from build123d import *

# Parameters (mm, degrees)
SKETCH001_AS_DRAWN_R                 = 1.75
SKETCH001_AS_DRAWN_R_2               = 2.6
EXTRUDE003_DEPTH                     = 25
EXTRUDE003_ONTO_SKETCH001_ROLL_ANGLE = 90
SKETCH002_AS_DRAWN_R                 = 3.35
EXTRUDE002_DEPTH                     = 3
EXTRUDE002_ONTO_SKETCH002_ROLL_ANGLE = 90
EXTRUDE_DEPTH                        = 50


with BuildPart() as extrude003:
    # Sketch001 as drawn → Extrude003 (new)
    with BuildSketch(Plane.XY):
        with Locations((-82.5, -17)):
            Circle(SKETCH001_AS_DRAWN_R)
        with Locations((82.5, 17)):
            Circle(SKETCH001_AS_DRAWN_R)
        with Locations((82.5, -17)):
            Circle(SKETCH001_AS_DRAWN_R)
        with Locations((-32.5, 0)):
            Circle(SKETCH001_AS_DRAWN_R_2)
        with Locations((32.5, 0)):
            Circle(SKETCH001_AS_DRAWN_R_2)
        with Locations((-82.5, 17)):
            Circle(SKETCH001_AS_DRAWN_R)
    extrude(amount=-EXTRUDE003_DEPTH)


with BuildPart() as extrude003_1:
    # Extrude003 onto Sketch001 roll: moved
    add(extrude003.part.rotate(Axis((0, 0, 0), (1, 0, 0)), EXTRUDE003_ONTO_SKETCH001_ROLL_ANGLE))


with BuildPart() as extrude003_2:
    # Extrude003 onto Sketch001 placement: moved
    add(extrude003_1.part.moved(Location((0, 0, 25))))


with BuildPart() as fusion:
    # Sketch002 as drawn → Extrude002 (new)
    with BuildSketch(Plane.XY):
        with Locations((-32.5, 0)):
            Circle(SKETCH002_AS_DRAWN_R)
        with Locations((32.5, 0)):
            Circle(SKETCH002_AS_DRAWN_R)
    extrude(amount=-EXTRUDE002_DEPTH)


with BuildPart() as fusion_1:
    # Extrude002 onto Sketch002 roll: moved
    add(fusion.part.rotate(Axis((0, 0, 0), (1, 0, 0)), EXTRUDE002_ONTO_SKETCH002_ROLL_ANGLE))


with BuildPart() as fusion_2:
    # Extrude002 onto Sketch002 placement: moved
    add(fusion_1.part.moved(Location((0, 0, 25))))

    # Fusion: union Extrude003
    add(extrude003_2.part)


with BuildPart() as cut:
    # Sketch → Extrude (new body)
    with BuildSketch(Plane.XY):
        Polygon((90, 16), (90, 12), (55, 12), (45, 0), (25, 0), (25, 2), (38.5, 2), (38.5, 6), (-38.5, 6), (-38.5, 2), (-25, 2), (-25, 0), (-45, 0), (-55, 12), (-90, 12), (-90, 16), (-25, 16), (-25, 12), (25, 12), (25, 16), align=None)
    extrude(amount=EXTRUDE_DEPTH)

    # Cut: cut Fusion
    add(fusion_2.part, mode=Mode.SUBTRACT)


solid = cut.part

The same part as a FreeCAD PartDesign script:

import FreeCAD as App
import Part
import Sketcher
from FreeCAD import Vector
Q = App.Units.Quantity

doc = App.newDocument("Part")
body = doc.addObject("PartDesign::Body", "Body")
body.AllowCompound = True

# Sketch on XY plane
sketch1 = body.newObject("Sketcher::SketchObject", "Sketch")
sketch1.AttachmentSupport = (doc.getObject("XY_Plane"), [""])
sketch1.MapMode = "FlatFace"
sketch1.addGeometry([
    Part.Circle(Vector(-82.5, -17, 0), Vector(0, 0, 1), 1.8),  # 0
    Part.Circle(Vector(82.5, 17, 0), Vector(0, 0, 1), 1.8),  # 1
    Part.Circle(Vector(82.5, -17, 0), Vector(0, 0, 1), 1.8),  # 2
    Part.Circle(Vector(-32.5, 0, 0), Vector(0, 0, 1), 2.6),  # 3
    Part.Circle(Vector(32.5, 0, 0), Vector(0, 0, 1), 2.6),  # 4
    Part.Circle(Vector(-82.5, 17, 0), Vector(0, 0, 1), 1.8),  # 5
], False)
sketch1.addConstraint([
    Sketcher.Constraint("Equal", 0, 1),
    Sketcher.Constraint("Equal", 1, 2),
    Sketcher.Constraint("Equal", 3, 4),
    Sketcher.Constraint("Equal", 2, 5),
    Sketcher.Constraint("Symmetric", 0, 3, 1, 3, -1, 1),
    Sketcher.Constraint("Symmetric", 3, 3, 4, 3, -1, 1),
    Sketcher.Constraint("Symmetric", 2, 3, 5, 3, -1, 1),
    Sketcher.Constraint("Symmetric", 0, 3, 2, 3, -2),
    Sketcher.Constraint("PointOnObject", 3, 3, -1),
    Sketcher.Constraint("Diameter", 0, Q("3.5 mm")),
    Sketcher.Constraint("Diameter", 3, Q("5.2 mm")),
    Sketcher.Constraint("DistanceY", 0, 3, -1, 1, Q("17 mm")),
    Sketcher.Constraint("DistanceX", 0, 3, 1, 3, Q("165 mm")),
    Sketcher.Constraint("DistanceX", 0, 3, 3, 3, Q("50 mm")),
])
pad1 = body.newObject("PartDesign::Pad", "Pad")
pad1.Profile = sketch1
pad1.Length = 25
pad1.Reversed = True
body2 = doc.addObject("PartDesign::Body", "Body001")
body2.AllowCompound = True
doc.recompute()

body.Placement = App.Placement(Vector(0, 0, 0), App.Rotation(Vector(1, 0, 0), 90))
boolean = body2.newObject("PartDesign::Boolean", "Boolean")
boolean.Type = "Fuse"
boolean.addObjects([body])
body3 = doc.addObject("PartDesign::Body", "Body002")
body3.AllowCompound = True
doc.recompute()

body2.Placement = App.Placement(Vector(0, 0, 25), App.Rotation(Vector(0, 0, 1), 0))
boolean2 = body3.newObject("PartDesign::Boolean", "Boolean001")
boolean2.Type = "Fuse"
boolean2.addObjects([body2])
body4 = doc.addObject("PartDesign::Body", "Body003")
body4.AllowCompound = True

# Sketch on XY plane
sketch2 = body4.newObject("Sketcher::SketchObject", "Sketch001")
sketch2.AttachmentSupport = (doc.getObject("XY_Plane003"), [""])
sketch2.MapMode = "FlatFace"
sketch2.addGeometry([
    Part.Circle(Vector(-32.5, 0, 0), Vector(0, 0, 1), 3.4),
    Part.Circle(Vector(32.5, 0, 0), Vector(0, 0, 1), 3.4),
], False)
sketch2.addConstraint([
    Sketcher.Constraint("Equal", 0, 1),
    Sketcher.Constraint("Symmetric", 0, 3, 1, 3, -1, 1),
    Sketcher.Constraint("PointOnObject", 0, 3, -1),
    Sketcher.Constraint("Diameter", 0, Q("6.7 mm")),
    Sketcher.Constraint("DistanceX", 0, 3, 1, 3, Q("65 mm")),
])
pad2 = body4.newObject("PartDesign::Pad", "Pad001")
pad2.Profile = sketch2
pad2.Length = 3
pad2.Reversed = True
body5 = doc.addObject("PartDesign::Body", "Body004")
body5.AllowCompound = True
doc.recompute()

body4.Placement = App.Placement(Vector(0, 0, 0), App.Rotation(Vector(1, 0, 0), 90))
boolean3 = body5.newObject("PartDesign::Boolean", "Boolean002")
boolean3.Type = "Fuse"
boolean3.addObjects([body4])
body6 = doc.addObject("PartDesign::Body", "Body005")
body6.AllowCompound = True
doc.recompute()

body5.Placement = App.Placement(Vector(0, 0, 25), App.Rotation(Vector(0, 0, 1), 0))
boolean4 = body6.newObject("PartDesign::Boolean", "Boolean003")
boolean4.Type = "Fuse"
boolean4.addObjects([body5])
doc.recompute()

boolean5 = body6.newObject("PartDesign::Boolean", "Boolean004")
boolean5.Type = "Fuse"
boolean5.addObjects([body3])
body7 = doc.addObject("PartDesign::Body", "Body006")

# Sketch on XY plane
sketch3 = body7.newObject("Sketcher::SketchObject", "Sketch002")
sketch3.AttachmentSupport = (doc.getObject("XY_Plane006"), [""])
sketch3.MapMode = "FlatFace"
sketch3.addGeometry([
    Part.LineSegment(Vector(90, 12, 0), Vector(90, 16, 0)),  # 0
    Part.LineSegment(Vector(90, 16, 0), Vector(25, 16, 0)),  # 1
    Part.LineSegment(Vector(25, 16, 0), Vector(25, 12, 0)),  # 2
    Part.LineSegment(Vector(25, 12, 0), Vector(-25, 12, 0)),  # 3
    Part.LineSegment(Vector(-25, 12, 0), Vector(-25, 16, 0)),  # 4
    Part.LineSegment(Vector(-25, 16, 0), Vector(-90, 16, 0)),  # 5
    Part.LineSegment(Vector(-90, 16, 0), Vector(-90, 12, 0)),  # 6
    Part.LineSegment(Vector(-90, 12, 0), Vector(-55, 12, 0)),  # 7
    Part.LineSegment(Vector(-55, 12, 0), Vector(-45, 0, 0)),  # 8
    Part.LineSegment(Vector(-45, 0, 0), Vector(-25, 0, 0)),  # 9
    Part.LineSegment(Vector(-25, 0, 0), Vector(-25, 2, 0)),  # 10
    Part.LineSegment(Vector(-25, 2, 0), Vector(-38.5, 2, 0)),  # 11
    Part.LineSegment(Vector(-38.5, 2, 0), Vector(-38.5, 6, 0)),  # 12
    Part.LineSegment(Vector(-38.5, 6, 0), Vector(38.5, 6, 0)),  # 13
    Part.LineSegment(Vector(38.5, 6, 0), Vector(38.5, 2, 0)),  # 14
    Part.LineSegment(Vector(38.5, 2, 0), Vector(25, 2, 0)),  # 15
    Part.LineSegment(Vector(25, 2, 0), Vector(25, 0, 0)),  # 16
    Part.LineSegment(Vector(25, 0, 0), Vector(45, 0, 0)),  # 17
    Part.LineSegment(Vector(45, 0, 0), Vector(55, 12, 0)),  # 18
    Part.LineSegment(Vector(55, 12, 0), Vector(90, 12, 0)),  # 19
], False)
sketch3.addConstraint([
    Sketcher.Constraint("Coincident", 0, 2, 1, 1),
    Sketcher.Constraint("Coincident", 1, 2, 2, 1),
    Sketcher.Constraint("Coincident", 2, 2, 3, 1),
    Sketcher.Constraint("Coincident", 3, 2, 4, 1),
    Sketcher.Constraint("Coincident", 4, 2, 5, 1),
    Sketcher.Constraint("Coincident", 5, 2, 6, 1),
    Sketcher.Constraint("Coincident", 6, 2, 7, 1),
    Sketcher.Constraint("Coincident", 7, 2, 8, 1),
    Sketcher.Constraint("Coincident", 8, 2, 9, 1),
    Sketcher.Constraint("Coincident", 9, 2, 10, 1),
    Sketcher.Constraint("Coincident", 10, 2, 11, 1),
    Sketcher.Constraint("Coincident", 11, 2, 12, 1),
    Sketcher.Constraint("Coincident", 12, 2, 13, 1),
    Sketcher.Constraint("Coincident", 13, 2, 14, 1),
    Sketcher.Constraint("Coincident", 14, 2, 15, 1),
    Sketcher.Constraint("Coincident", 15, 2, 16, 1),
    Sketcher.Constraint("Coincident", 16, 2, 17, 1),
    Sketcher.Constraint("Coincident", 17, 2, 18, 1),
    Sketcher.Constraint("Coincident", 18, 2, 19, 1),
    Sketcher.Constraint("Coincident", 19, 2, 0, 1),
    Sketcher.Constraint("Vertical", 0),
    Sketcher.Constraint("Horizontal", 1),
    Sketcher.Constraint("Vertical", 2),
    Sketcher.Constraint("Horizontal", 3),
    Sketcher.Constraint("Vertical", 4),
    Sketcher.Constraint("Horizontal", 5),
    Sketcher.Constraint("Vertical", 6),
    Sketcher.Constraint("Horizontal", 7),
    Sketcher.Constraint("Horizontal", 9),
    Sketcher.Constraint("Vertical", 10),
    Sketcher.Constraint("Horizontal", 11),
    Sketcher.Constraint("Vertical", 12),
    Sketcher.Constraint("Horizontal", 13),
    Sketcher.Constraint("Vertical", 14),
    Sketcher.Constraint("Horizontal", 15),
    Sketcher.Constraint("Vertical", 16),
    Sketcher.Constraint("Horizontal", 17),
    Sketcher.Constraint("Horizontal", 19),
    Sketcher.Constraint("Symmetric", 9, 2, 16, 2, -1, 1),
    Sketcher.Constraint("Symmetric", 1, 2, 4, 2, -2),
    Sketcher.Constraint("Symmetric", 11, 2, 14, 2, -2),
    Sketcher.Constraint("Symmetric", 8, 2, 17, 2, -2),
    Sketcher.Constraint("Symmetric", 7, 2, 18, 2, -2),
    Sketcher.Constraint("Horizontal", 3, 2, 6, 2),
    Sketcher.Constraint("Vertical", 4, 2, 9, 2),
    Sketcher.Constraint("Equal", 1, 5),
    Sketcher.Constraint("Equal", 6, 12),
    Sketcher.Constraint("DistanceX", 1, 2, 1, 1, Q("65 mm")),
    Sketcher.Constraint("DistanceX", 3, 2, 3, 1, Q("50 mm")),
    Sketcher.Constraint("DistanceX", 7, 1, 7, 2, Q("35 mm")),
    Sketcher.Constraint("DistanceX", 9, 1, 9, 2, Q("20 mm")),
    Sketcher.Constraint("DistanceX", 13, 1, 13, 2, Q("77 mm")),
    Sketcher.Constraint("DistanceY", 0, 1, 0, 2, Q("4 mm")),
    Sketcher.Constraint("DistanceY", 10, 1, 10, 2, Q("2 mm")),
    Sketcher.Constraint("DistanceY", -1, 1, 0, 2, Q("16 mm")),
])
pad3 = body7.newObject("PartDesign::Pad", "Pad002")
pad3.Profile = sketch3
pad3.Length = 50
doc.recompute()

boolean6 = body7.newObject("PartDesign::Boolean", "Boolean005")
boolean6.Type = "Cut"
boolean6.addObjects([body6])

doc.recompute()
